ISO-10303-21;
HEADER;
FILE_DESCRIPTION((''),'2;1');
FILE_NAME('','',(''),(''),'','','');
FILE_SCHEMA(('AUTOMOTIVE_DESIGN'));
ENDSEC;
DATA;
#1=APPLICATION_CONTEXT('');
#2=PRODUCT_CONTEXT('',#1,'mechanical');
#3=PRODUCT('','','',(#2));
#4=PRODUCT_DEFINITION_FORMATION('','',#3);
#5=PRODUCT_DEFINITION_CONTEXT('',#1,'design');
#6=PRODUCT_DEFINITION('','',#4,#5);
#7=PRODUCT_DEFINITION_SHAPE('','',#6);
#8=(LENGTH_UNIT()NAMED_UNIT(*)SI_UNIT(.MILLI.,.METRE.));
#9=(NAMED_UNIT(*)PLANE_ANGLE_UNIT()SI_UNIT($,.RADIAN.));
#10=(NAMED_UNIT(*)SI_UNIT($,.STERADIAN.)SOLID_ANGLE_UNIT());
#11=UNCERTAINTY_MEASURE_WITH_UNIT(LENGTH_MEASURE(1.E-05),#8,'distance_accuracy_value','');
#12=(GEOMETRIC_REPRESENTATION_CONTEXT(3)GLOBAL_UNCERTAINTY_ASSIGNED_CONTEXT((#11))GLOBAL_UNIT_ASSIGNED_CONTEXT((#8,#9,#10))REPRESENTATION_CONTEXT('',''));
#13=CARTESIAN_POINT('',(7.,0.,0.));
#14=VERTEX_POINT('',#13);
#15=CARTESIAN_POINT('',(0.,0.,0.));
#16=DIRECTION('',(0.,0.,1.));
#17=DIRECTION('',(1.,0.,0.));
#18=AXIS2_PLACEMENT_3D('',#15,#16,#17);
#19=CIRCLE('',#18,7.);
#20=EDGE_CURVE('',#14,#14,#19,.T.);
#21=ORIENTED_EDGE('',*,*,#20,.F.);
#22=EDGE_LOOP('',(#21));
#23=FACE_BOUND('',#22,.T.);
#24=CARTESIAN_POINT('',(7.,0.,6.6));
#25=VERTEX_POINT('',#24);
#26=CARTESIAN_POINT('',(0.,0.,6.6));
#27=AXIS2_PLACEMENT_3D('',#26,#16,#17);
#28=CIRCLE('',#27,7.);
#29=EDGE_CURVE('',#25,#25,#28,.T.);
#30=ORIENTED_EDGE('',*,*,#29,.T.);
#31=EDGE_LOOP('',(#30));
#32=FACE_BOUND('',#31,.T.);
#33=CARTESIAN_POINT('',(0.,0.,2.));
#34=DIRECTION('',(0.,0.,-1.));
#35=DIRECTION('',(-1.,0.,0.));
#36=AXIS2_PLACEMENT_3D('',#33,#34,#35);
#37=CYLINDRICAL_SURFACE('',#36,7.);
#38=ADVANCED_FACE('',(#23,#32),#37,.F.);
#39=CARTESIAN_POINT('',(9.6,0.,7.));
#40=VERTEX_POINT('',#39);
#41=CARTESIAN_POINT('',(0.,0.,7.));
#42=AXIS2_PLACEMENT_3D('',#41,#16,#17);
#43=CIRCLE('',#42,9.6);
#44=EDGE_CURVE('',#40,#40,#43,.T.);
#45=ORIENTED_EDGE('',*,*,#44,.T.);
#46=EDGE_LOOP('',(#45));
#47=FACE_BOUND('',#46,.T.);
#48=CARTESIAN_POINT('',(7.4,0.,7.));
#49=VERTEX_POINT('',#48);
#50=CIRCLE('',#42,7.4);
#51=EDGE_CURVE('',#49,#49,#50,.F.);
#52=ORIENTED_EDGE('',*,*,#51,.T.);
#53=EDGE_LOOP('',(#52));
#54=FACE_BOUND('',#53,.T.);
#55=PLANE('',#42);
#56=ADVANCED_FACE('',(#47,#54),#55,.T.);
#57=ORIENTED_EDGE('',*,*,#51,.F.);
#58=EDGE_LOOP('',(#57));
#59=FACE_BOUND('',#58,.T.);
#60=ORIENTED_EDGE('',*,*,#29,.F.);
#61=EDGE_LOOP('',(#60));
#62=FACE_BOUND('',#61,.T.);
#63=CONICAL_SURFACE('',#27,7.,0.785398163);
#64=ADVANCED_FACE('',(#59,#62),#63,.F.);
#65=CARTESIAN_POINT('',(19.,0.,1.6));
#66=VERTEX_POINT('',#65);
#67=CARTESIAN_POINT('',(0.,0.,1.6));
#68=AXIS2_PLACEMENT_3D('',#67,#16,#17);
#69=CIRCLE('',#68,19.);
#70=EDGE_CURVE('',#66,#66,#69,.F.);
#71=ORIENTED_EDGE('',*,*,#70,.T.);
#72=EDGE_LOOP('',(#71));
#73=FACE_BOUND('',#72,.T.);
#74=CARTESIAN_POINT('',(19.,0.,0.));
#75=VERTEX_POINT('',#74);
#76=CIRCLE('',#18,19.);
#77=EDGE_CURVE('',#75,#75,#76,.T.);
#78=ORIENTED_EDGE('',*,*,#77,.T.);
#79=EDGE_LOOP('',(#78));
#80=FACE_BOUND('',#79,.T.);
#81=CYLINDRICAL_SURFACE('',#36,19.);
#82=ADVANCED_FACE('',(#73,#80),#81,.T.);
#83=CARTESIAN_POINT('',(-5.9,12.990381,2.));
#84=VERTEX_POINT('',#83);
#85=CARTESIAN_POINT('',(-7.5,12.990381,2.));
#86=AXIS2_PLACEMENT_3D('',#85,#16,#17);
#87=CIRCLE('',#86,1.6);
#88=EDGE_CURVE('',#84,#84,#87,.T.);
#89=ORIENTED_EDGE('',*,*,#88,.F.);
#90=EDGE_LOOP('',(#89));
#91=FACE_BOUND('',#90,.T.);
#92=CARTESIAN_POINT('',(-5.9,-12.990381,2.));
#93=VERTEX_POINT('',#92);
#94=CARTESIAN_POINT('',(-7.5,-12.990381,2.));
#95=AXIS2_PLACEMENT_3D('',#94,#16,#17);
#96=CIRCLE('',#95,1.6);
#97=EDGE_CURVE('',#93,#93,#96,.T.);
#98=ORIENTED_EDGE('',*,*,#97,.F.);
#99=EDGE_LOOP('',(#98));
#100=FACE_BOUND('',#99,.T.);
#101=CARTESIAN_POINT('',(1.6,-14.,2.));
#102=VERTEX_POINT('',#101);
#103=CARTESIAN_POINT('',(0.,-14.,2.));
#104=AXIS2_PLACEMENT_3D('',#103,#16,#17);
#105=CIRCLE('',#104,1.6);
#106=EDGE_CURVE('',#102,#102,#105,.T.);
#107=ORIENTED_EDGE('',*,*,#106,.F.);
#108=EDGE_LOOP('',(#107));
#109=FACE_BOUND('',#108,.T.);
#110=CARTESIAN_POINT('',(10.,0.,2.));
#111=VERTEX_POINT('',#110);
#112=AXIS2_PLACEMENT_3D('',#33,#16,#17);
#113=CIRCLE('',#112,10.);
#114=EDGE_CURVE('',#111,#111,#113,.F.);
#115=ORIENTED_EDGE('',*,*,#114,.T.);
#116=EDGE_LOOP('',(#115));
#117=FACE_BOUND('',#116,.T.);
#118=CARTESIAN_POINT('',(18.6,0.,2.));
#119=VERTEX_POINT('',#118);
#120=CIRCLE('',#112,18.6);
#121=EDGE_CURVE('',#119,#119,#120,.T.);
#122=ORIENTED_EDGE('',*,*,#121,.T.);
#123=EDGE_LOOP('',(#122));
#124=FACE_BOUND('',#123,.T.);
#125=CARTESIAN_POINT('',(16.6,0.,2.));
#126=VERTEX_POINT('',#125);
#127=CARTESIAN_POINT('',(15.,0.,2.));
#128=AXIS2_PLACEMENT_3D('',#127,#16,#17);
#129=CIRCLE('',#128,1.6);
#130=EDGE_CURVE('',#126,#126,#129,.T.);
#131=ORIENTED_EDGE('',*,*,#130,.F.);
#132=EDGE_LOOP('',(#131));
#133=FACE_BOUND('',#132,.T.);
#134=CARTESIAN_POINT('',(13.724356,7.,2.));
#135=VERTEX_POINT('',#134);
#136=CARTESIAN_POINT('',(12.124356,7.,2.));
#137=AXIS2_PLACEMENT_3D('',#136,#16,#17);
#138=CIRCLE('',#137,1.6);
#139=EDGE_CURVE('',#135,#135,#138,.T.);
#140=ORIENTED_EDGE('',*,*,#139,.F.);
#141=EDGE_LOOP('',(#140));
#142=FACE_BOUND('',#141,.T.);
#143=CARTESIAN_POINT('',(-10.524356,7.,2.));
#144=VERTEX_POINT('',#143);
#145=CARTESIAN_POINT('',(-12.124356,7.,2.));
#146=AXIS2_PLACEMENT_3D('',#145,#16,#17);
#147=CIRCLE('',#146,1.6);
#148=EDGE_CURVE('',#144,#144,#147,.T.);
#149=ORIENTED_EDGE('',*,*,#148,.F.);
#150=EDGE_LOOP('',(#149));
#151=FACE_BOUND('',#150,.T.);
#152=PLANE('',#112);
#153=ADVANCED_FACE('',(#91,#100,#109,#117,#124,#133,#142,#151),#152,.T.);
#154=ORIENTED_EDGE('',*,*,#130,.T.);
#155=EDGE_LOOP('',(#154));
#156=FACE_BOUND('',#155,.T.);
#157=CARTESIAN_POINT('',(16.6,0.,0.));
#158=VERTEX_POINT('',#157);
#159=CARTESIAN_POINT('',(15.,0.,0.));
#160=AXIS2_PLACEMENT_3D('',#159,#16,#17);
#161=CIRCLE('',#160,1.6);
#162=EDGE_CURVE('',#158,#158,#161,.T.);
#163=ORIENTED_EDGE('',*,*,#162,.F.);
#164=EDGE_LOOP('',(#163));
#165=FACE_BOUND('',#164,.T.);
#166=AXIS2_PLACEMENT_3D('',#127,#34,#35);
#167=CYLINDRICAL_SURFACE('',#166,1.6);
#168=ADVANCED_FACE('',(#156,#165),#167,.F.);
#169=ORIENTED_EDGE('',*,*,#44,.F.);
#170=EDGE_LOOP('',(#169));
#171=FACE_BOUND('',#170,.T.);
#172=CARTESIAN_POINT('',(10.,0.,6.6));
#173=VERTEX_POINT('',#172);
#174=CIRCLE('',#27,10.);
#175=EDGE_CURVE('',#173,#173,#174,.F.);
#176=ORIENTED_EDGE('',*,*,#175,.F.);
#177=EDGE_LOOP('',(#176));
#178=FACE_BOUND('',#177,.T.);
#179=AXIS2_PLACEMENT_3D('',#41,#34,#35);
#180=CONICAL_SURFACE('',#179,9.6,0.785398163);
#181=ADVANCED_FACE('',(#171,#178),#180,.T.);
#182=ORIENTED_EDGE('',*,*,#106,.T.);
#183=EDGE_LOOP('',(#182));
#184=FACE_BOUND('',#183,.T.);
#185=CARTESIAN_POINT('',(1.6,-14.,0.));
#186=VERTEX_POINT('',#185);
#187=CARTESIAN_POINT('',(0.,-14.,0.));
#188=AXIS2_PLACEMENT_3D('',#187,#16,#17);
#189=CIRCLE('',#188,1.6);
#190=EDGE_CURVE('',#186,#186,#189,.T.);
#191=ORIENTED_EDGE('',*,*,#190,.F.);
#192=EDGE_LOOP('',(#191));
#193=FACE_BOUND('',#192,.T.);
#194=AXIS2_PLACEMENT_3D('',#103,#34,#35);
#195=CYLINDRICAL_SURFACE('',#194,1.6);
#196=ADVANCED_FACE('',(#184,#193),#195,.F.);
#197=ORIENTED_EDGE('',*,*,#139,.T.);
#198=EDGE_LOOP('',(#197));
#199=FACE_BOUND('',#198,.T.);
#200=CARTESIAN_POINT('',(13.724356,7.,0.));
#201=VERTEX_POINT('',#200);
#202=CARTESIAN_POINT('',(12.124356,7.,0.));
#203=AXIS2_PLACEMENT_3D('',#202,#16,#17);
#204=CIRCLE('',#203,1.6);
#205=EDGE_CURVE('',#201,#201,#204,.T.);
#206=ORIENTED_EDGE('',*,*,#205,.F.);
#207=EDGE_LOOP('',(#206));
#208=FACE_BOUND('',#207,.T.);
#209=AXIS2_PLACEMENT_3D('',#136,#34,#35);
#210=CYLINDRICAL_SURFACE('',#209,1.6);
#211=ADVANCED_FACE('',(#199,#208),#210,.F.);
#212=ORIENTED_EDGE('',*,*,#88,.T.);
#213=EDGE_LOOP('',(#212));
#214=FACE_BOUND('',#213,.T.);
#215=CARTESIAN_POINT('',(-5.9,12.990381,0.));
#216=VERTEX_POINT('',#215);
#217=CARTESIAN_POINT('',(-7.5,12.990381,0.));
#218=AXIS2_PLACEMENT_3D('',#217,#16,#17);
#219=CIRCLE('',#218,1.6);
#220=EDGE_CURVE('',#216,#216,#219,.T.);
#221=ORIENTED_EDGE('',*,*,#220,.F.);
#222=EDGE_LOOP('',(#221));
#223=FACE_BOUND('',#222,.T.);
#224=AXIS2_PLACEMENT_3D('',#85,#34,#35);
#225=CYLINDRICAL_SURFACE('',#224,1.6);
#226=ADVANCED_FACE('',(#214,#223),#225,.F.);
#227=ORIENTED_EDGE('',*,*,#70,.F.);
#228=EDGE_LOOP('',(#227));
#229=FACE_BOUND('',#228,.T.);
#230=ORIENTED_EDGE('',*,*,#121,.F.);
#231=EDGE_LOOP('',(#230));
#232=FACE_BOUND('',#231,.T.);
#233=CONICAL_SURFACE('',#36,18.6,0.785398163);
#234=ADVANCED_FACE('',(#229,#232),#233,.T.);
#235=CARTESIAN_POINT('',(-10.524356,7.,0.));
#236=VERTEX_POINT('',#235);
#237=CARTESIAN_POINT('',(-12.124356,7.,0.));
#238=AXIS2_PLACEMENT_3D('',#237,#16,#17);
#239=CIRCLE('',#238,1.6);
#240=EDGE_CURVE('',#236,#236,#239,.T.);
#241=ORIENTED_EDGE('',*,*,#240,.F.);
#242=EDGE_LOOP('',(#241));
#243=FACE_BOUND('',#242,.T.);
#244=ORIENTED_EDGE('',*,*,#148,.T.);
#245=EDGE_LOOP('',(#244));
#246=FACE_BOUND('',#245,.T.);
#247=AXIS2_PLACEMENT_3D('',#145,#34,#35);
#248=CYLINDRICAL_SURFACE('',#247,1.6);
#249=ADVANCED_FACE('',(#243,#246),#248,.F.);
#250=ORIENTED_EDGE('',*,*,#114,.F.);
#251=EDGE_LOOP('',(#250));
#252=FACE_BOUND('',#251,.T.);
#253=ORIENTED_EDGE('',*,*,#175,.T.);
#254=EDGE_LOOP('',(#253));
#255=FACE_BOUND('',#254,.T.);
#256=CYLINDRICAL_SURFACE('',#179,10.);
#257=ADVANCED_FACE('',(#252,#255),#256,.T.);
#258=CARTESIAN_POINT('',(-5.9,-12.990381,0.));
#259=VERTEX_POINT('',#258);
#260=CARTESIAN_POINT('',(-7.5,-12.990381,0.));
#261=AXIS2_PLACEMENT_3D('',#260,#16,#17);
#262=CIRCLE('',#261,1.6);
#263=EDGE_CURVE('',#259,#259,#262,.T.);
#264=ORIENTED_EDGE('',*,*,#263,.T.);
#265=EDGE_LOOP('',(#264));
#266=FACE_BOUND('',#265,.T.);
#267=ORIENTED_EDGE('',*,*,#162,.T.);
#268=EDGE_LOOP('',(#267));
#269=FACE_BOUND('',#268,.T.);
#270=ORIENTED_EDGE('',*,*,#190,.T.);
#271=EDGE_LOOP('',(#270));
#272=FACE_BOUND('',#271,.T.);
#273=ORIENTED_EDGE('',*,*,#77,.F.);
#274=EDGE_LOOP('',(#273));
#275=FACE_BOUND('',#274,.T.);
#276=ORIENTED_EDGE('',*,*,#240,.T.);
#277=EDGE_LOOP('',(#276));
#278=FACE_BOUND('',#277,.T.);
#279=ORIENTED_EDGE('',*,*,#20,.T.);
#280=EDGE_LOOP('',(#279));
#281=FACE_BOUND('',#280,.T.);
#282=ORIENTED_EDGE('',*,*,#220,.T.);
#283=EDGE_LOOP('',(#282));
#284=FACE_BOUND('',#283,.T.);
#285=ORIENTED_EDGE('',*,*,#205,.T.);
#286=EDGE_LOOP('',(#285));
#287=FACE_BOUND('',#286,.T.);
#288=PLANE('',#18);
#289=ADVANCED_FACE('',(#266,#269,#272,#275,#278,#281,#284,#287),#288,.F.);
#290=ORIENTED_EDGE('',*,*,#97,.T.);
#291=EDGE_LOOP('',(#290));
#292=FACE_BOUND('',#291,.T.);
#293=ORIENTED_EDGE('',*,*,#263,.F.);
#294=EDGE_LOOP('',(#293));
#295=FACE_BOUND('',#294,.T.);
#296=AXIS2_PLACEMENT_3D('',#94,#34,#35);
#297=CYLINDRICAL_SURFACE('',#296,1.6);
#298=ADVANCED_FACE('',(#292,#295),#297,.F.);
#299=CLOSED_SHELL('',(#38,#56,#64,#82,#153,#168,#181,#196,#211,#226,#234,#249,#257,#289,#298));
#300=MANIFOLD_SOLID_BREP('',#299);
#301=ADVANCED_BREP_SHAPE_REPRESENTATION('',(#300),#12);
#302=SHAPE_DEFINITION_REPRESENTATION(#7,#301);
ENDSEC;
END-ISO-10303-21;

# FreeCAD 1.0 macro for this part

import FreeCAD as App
import Part
import Sketcher

V = App.Vector


def edges_at(feature, points):
    """Names of the edges that pass closest to the given points."""
    edges = feature.Shape.Edges
    near = lambda p: min(range(len(edges)), key=lambda i: edges[i].distToShape(Part.Vertex(*p))[0])
    return sorted({f"Edge{near(p) + 1}" for p in points})

doc = App.newDocument("Part")
body = doc.addObject("PartDesign::Body", "Body")

# Sketch on XY plane
sketch1 = doc.addObject("Sketcher::SketchObject", "Sketch")
body.addObject(sketch1)
sketch1.AttachmentSupport = (doc.XY_Plane, [""])
sketch1.MapMode = "FlatFace"
sketch1.addGeometry(Part.Circle(V(0, 0, 0), V(0, 0, 1), 19), False)
sketch1.addGeometry(Part.Circle(V(-7.5, -13, 0), V(0, 0, 1), 1.6), False)
sketch1.addGeometry(Part.Circle(V(0, -14, 0), V(0, 0, 1), 1.6), False)
sketch1.addGeometry(Part.Circle(V(-12.1, 7, 0), V(0, 0, 1), 1.6), False)
sketch1.addGeometry(Part.Circle(V(0, 0, 0), V(0, 0, 1), 7), False)
sketch1.addGeometry(Part.Circle(V(-7.5, 13, 0), V(0, 0, 1), 1.6), False)
sketch1.addGeometry(Part.Circle(V(15, 0, 0), V(0, 0, 1), 1.6), False)
sketch1.addGeometry(Part.Circle(V(12.1, 7, 0), V(0, 0, 1), 1.6), False)
sketch1.addConstraint(Sketcher.Constraint("Coincident", 0, 3, -1, 1))
sketch1.addConstraint(Sketcher.Constraint("Coincident", 4, 3, -1, 1))
sketch1.addConstraint(Sketcher.Constraint("Equal", 1, 2))
sketch1.addConstraint(Sketcher.Constraint("Equal", 2, 3))
sketch1.addConstraint(Sketcher.Constraint("Equal", 3, 5))
sketch1.addConstraint(Sketcher.Constraint("Equal", 5, 6))
sketch1.addConstraint(Sketcher.Constraint("Equal", 6, 7))
sketch1.addConstraint(Sketcher.Constraint("Symmetric", 3, 3, 7, 3, -2))
sketch1.addConstraint(Sketcher.Constraint("Symmetric", 1, 3, 5, 3, -1))
sketch1.addConstraint(Sketcher.Constraint("PointOnObject", 2, 3, -2))
sketch1.addConstraint(Sketcher.Constraint("PointOnObject", 6, 3, -1))
sketch1.addConstraint(Sketcher.Constraint("Diameter", 0, 38.0))
sketch1.addConstraint(Sketcher.Constraint("Diameter", 4, 14.0))
sketch1.addConstraint(Sketcher.Constraint("Diameter", 1, 3.2))
sketch1.addConstraint(Sketcher.Constraint("DistanceY", 2, 3, -1, 1, 14.0))
sketch1.addConstraint(Sketcher.Constraint("DistanceY", -1, 1, 3, 3, 7.0))
sketch1.addConstraint(Sketcher.Constraint("DistanceX", -1, 1, 6, 3, 15.0))
sketch1.addConstraint(Sketcher.Constraint("DistanceX", 1, 3, -1, 1, 7.5))
sketch1.addConstraint(Sketcher.Constraint("DistanceY", 1, 3, -1, 1, 12.990381))
sketch1.addConstraint(Sketcher.Constraint("DistanceX", 3, 3, -1, 1, 12.124356))
pad1 = doc.addObject("PartDesign::Pad", "Pad")
body.addObject(pad1)
pad1.Profile = sketch1
pad1.Length = 2

# Sketch on XY plane
sketch2 = doc.addObject("Sketcher::SketchObject", "Sketch001")
body.addObject(sketch2)
sketch2.AttachmentSupport = (doc.XY_Plane, [""])
sketch2.MapMode = "FlatFace"
sketch2.addGeometry(Part.Circle(V(0, 0, 0), V(0, 0, 1), 10), False)
sketch2.addGeometry(Part.Circle(V(0, 0, 0), V(0, 0, 1), 7), False)
sketch2.addConstraint(Sketcher.Constraint("Coincident", 0, 3, -1, 1))
sketch2.addConstraint(Sketcher.Constraint("Coincident", 1, 3, -1, 1))
sketch2.addConstraint(Sketcher.Constraint("Diameter", 0, 20.0))
sketch2.addConstraint(Sketcher.Constraint("Diameter", 1, 14.0))
pad2 = doc.addObject("PartDesign::Pad", "Pad001")
body.addObject(pad2)
pad2.Profile = sketch2
pad2.Length = 7
doc.recompute()

chamfer = doc.addObject("PartDesign::Chamfer", "Chamfer")
body.addObject(chamfer)
chamfer.Base = (pad2, edges_at(pad2, [(-7, 0, 7), (5, 8.66, 7), (-19, 0, 2)]))
chamfer.Size = 0.4

doc.recompute()
